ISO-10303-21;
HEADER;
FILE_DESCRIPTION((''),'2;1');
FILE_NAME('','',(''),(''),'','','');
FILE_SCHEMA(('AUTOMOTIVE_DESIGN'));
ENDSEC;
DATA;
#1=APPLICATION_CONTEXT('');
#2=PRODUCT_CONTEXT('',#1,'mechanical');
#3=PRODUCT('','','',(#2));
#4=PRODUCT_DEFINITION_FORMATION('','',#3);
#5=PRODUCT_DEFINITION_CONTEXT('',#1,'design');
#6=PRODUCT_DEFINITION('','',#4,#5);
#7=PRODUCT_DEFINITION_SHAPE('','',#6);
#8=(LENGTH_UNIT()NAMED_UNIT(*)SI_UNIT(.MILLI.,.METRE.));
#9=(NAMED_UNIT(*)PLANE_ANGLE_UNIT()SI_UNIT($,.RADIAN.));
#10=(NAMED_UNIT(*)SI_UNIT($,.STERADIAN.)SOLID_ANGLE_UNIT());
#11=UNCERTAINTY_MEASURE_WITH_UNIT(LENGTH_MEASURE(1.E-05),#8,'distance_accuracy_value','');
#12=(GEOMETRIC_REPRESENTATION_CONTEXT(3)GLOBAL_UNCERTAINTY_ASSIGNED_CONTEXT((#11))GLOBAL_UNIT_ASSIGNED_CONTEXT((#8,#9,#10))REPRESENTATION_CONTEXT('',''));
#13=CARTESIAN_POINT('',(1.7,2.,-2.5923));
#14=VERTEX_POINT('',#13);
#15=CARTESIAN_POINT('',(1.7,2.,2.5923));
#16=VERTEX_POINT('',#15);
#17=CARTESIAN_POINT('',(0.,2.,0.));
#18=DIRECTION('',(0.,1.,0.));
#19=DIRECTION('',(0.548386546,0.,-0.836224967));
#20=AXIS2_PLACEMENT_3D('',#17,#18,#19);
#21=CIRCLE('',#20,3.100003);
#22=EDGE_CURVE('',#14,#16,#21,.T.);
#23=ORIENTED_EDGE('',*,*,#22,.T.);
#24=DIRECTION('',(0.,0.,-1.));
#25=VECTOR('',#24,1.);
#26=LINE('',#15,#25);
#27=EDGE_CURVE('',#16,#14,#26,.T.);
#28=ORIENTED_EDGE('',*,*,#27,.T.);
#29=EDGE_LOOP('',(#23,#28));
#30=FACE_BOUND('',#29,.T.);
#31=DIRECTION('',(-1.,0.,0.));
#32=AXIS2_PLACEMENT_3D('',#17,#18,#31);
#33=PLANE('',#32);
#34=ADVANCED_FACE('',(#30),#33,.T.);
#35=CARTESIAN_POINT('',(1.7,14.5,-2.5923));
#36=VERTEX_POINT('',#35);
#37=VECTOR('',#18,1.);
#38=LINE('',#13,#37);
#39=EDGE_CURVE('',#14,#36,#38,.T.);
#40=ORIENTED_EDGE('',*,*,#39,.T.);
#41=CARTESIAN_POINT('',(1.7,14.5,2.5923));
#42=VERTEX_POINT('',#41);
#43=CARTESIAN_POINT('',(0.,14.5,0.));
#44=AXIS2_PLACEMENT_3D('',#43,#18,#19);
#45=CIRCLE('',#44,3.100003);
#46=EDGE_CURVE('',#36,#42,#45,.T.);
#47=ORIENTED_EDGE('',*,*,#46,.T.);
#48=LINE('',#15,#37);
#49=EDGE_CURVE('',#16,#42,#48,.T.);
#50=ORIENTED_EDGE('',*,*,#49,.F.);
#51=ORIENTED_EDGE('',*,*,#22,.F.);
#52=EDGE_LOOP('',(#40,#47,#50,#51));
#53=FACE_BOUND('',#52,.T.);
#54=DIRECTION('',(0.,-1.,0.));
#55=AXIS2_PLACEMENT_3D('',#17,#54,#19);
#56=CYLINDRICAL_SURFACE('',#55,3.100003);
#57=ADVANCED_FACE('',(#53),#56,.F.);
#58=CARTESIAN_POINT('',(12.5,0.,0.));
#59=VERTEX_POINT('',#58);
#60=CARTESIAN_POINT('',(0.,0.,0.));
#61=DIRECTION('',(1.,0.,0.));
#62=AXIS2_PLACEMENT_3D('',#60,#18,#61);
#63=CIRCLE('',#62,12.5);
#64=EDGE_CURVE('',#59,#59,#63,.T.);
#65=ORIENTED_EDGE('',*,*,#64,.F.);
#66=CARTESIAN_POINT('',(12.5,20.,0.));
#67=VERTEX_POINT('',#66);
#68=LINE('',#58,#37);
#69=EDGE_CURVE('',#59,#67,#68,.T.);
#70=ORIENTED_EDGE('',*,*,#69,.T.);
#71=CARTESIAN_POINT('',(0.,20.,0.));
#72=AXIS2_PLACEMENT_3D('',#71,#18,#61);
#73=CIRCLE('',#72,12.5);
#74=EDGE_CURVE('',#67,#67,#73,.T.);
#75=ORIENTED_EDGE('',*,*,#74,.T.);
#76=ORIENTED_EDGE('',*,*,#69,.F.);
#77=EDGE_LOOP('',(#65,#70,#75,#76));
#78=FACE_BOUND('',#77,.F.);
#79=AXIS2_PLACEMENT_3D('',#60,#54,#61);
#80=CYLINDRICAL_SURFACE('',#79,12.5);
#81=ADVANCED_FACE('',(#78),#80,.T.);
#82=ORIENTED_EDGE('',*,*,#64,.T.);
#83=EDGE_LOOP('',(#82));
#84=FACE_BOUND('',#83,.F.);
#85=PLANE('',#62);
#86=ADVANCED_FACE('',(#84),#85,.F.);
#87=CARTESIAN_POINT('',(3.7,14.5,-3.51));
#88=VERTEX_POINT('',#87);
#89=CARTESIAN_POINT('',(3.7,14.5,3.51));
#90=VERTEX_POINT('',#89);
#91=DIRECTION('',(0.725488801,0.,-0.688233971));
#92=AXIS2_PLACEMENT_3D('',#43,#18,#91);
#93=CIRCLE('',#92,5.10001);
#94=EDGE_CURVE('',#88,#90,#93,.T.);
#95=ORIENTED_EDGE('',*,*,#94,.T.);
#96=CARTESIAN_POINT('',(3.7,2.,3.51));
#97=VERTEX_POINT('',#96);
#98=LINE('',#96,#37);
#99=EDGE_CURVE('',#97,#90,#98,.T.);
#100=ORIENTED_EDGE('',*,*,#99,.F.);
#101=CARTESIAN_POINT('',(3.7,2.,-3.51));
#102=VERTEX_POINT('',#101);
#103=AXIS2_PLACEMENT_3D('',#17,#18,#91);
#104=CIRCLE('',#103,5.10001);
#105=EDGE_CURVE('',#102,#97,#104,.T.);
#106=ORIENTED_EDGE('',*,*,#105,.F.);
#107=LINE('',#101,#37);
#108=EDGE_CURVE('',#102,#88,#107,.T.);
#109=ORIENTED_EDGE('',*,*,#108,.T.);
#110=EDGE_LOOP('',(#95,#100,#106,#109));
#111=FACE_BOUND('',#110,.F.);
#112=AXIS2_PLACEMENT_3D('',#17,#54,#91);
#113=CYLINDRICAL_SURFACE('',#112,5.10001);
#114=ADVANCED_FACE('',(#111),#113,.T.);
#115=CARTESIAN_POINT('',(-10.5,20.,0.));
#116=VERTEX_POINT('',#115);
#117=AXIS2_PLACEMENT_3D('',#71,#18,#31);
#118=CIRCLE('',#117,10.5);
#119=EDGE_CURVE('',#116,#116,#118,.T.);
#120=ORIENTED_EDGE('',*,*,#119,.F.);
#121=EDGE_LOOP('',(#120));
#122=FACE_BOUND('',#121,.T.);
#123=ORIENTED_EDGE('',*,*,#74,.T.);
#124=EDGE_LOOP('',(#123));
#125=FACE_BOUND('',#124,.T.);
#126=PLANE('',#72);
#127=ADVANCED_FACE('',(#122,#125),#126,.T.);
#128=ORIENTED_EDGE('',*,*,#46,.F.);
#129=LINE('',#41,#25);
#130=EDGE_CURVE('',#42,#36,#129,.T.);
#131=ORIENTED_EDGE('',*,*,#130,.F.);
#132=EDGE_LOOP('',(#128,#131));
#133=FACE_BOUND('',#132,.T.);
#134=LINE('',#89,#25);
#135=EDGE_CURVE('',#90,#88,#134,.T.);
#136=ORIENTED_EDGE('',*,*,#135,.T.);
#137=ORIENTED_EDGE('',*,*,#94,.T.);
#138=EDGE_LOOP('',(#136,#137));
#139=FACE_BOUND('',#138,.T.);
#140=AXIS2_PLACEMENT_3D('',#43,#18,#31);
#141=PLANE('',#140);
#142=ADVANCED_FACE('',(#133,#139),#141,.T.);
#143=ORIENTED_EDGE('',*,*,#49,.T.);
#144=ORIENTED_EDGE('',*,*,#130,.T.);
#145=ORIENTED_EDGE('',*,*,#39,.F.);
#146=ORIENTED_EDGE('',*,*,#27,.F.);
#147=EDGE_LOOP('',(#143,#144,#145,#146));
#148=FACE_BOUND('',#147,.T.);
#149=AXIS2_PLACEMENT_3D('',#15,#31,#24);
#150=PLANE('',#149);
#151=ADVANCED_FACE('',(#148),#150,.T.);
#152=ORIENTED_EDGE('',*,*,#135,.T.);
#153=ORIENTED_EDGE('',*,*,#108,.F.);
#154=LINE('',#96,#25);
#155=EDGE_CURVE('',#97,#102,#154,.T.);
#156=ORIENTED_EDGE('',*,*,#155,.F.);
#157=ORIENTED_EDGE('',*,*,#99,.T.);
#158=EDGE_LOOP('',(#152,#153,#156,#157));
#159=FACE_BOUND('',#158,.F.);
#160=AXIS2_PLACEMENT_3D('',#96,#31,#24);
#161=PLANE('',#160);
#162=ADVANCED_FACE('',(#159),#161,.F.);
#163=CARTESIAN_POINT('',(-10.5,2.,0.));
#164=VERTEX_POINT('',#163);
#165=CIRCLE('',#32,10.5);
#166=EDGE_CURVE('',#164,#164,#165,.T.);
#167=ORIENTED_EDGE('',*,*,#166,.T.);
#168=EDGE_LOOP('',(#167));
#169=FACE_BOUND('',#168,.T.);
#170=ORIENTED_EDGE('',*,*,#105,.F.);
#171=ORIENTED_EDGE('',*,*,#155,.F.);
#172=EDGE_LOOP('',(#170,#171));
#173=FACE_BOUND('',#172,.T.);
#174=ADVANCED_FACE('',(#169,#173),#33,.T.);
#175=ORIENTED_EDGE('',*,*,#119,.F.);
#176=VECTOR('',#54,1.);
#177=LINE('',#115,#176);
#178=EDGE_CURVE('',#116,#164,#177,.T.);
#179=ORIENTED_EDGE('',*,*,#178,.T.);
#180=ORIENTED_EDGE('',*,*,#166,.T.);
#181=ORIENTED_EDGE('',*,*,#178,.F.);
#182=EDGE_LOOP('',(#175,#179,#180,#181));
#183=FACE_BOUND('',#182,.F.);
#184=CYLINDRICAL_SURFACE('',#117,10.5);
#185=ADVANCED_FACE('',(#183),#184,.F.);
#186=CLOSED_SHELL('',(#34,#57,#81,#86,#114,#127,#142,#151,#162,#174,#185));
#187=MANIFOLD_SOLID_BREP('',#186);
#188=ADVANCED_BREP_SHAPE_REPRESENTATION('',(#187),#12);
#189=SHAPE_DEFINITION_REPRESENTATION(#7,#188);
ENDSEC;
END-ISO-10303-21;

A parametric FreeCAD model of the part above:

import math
import FreeCAD as App
import Part
import Sketcher
from FreeCAD import Vector

doc = App.newDocument("Part")
params = doc.addObject("Spreadsheet::Sheet", "Params")
for row, (alias, value) in enumerate([
    ("sketch1_diameter", "25 mm"),
    ("pad1_length", "20 mm"),
    ("sketch2_diameter", "21 mm"),
    ("pocket1_length", "18 mm"),
    ("sketch3_radius", "3.1 mm"),
    ("sketch3_radius2", "5.1 mm"),
    ("pad2_length", "12.5 mm"),
], start=1):
    params.set(f"A{row}", alias)
    params.set(f"B{row}", "=" + value)
    params.setAlias(f"B{row}", alias)

body = doc.addObject("PartDesign::Body", "Body")

# Sketch on XZ plane
sketch1 = doc.addObject("Sketcher::SketchObject", "Sketch")
body.addObject(sketch1)
sketch1.AttachmentSupport = (doc.XZ_Plane, [""])
sketch1.MapMode = "FlatFace"
sketch1.addGeometry(Part.Circle(Vector(0, 0, 0), Vector(0, 0, 1), 12), False)
sketch1.addConstraint(Sketcher.Constraint("Coincident", 0, 3, -1, 1))
sketch1.addConstraint(Sketcher.Constraint("Diameter", 0, 25.0))
sketch1.setExpression("Constraints[1]", "Params.sketch1_diameter")
pad1 = doc.addObject("PartDesign::Pad", "Pad")
body.addObject(pad1)
pad1.Profile = sketch1
pad1.setExpression("Length", "Params.pad1_length")
pad1.Reversed = True

# Sketch on XZ plane
sketch2 = doc.addObject("Sketcher::SketchObject", "Sketch001")
body.addObject(sketch2)
sketch2.AttachmentSupport = (doc.XZ_Plane, [""])
sketch2.MapMode = "FlatFace"
sketch2.AttachmentOffset = App.Placement(Vector(0, 0, -20), App.Rotation())
sketch2.addGeometry(Part.Circle(Vector(0, 0, 0), Vector(0, 0, 1), 10), False)
sketch2.addConstraint(Sketcher.Constraint("Coincident", 0, 3, -1, 1))
sketch2.addConstraint(Sketcher.Constraint("Diameter", 0, 21.0))
sketch2.setExpression("Constraints[1]", "Params.sketch2_diameter")
pocket1 = doc.addObject("PartDesign::Pocket", "Pocket")
body.addObject(pocket1)
pocket1.Profile = sketch2
pocket1.setExpression("Length", "Params.pocket1_length")
pocket1.Reversed = True

# Sketch on XZ plane
sketch3 = doc.addObject("Sketcher::SketchObject", "Sketch002")
body.addObject(sketch3)
sketch3.AttachmentSupport = (doc.XZ_Plane, [""])
sketch3.MapMode = "FlatFace"
sketch3.AttachmentOffset = App.Placement(Vector(0, 0, -2), App.Rotation())
sketch3.addGeometry(Part.LineSegment(Vector(3.7, 3.5, 0), Vector(3.7, -3.5, 0)), False)
sketch3.addGeometry(Part.ArcOfCircle(Part.Circle(Vector(0, 0, 0), Vector(0, 0, 1), 5.1), math.radians(43), math.radians(317)), False)
sketch3.addGeometry(Part.LineSegment(Vector(1.7, -2.6, 0), Vector(1.7, 2.6, 0)), False)
sketch3.addGeometry(Part.ArcOfCircle(Part.Circle(Vector(0, 0, 0), Vector(0, 0, 1), 3.1), math.radians(57), math.radians(303)), False)
sketch3.addConstraint(Sketcher.Constraint("Coincident", 0, 1, 1, 1))
sketch3.addConstraint(Sketcher.Constraint("Coincident", 1, 2, 0, 2))
sketch3.addConstraint(Sketcher.Constraint("Coincident", 2, 1, 3, 2))
sketch3.addConstraint(Sketcher.Constraint("Coincident", 3, 1, 2, 2))
sketch3.addConstraint(Sketcher.Constraint("Vertical", 0))
sketch3.addConstraint(Sketcher.Constraint("Vertical", 2))
sketch3.addConstraint(Sketcher.Constraint("Coincident", 1, 3, -1, 1))
sketch3.addConstraint(Sketcher.Constraint("Coincident", 3, 3, -1, 1))
sketch3.addConstraint(Sketcher.Constraint("Radius", 3, 3.1))
sketch3.addConstraint(Sketcher.Constraint("DistanceX", 2, 1, 1, 2, 2.0))
sketch3.addConstraint(Sketcher.Constraint("DistanceX", -1, 1, 2, 1, 1.7))
sketch3.addConstraint(Sketcher.Constraint("Radius", 1, 5.1))
sketch3.setExpression("Constraints[8]", "Params.sketch3_radius")
sketch3.setExpression("Constraints[11]", "Params.sketch3_radius2")
pad2 = doc.addObject("PartDesign::Pad", "Pad001")
body.addObject(pad2)
pad2.Profile = sketch3
pad2.setExpression("Length", "Params.pad2_length")
pad2.Reversed = True

doc.recompute()
